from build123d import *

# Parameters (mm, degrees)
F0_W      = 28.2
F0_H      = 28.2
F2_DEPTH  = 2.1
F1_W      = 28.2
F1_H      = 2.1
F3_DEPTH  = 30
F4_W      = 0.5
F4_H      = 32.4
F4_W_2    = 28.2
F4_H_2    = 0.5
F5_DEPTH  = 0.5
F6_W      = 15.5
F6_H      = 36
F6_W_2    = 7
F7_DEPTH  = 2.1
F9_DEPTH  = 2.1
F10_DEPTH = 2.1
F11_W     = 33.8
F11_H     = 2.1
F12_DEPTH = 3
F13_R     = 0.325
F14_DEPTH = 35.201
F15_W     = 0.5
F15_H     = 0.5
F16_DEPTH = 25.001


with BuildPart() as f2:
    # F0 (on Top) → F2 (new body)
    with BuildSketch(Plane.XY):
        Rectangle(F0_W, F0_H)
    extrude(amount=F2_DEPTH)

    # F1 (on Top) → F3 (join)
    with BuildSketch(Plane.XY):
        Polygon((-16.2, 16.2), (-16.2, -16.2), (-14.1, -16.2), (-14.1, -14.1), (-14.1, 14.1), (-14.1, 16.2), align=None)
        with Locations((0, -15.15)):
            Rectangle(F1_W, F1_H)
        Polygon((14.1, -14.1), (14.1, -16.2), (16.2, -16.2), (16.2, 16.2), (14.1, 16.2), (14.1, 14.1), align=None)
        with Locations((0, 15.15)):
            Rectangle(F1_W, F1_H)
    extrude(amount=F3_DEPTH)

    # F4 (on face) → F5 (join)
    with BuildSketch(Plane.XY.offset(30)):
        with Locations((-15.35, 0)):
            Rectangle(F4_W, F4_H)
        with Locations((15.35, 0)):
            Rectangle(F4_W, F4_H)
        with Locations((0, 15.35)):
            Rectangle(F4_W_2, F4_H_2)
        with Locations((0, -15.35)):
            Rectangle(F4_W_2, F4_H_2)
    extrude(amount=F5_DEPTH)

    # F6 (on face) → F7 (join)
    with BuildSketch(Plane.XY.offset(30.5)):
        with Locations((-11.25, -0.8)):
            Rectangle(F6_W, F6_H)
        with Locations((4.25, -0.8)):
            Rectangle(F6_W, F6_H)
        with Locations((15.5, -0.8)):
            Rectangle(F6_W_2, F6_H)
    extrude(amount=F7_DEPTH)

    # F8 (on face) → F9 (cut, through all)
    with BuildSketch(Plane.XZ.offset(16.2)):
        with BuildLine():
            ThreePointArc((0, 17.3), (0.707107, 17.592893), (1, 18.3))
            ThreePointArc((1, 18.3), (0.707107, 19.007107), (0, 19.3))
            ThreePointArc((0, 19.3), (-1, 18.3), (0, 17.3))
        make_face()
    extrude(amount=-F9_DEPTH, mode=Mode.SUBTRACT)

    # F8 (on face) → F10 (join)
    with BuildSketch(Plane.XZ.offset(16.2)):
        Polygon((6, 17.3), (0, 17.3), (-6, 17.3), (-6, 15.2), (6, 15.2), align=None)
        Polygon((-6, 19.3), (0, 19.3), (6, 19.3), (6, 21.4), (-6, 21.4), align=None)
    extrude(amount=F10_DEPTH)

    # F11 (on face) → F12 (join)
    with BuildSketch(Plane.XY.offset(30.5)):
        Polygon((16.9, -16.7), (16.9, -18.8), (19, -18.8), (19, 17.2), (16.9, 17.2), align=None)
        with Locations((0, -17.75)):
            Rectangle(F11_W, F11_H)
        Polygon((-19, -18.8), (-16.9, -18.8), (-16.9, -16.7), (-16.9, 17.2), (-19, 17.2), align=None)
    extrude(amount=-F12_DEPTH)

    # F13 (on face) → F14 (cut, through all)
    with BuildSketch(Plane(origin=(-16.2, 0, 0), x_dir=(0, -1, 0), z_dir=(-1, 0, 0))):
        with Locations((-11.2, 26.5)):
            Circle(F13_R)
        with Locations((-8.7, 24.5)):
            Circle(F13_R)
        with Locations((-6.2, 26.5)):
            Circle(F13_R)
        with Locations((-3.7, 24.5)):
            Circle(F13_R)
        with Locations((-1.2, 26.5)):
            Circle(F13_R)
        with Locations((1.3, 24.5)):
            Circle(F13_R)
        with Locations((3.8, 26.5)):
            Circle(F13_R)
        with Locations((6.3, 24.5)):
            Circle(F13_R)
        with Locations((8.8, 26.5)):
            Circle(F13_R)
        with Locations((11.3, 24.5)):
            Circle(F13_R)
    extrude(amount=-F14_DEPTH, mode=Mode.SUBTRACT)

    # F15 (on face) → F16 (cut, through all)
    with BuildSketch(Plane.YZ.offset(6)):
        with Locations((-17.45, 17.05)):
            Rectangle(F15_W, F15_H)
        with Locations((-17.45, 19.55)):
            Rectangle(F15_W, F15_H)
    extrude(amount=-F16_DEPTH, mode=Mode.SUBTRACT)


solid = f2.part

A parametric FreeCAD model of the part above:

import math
import FreeCAD as App
import Part
import Sketcher
from FreeCAD import Vector


def add_polygon(sketch, points):
    """Adds a closed chain of lines whose ends are joined by coincident constraints."""
    first, n = sketch.GeometryCount, len(points)
    for a, b in zip(points, points[1:] + points[:1]):
        sketch.addGeometry(Part.LineSegment(App.Vector(*a, 0), App.Vector(*b, 0)), False)
    for i in range(n):
        sketch.addConstraint(Sketcher.Constraint("Coincident", first + i, 2, first + (i + 1) % n, 1))

doc = App.newDocument("Part")
body = doc.addObject("PartDesign::Body", "Body")

sketch1 = body.newObject("Sketcher::SketchObject", "Sketch")
sketch1.AttachmentSupport = (doc.getObject("XY_Plane"), [""])
sketch1.MapMode = "FlatFace"
add_polygon(sketch1, [(-14, 14), (-14, -14), (14, -14), (14, 14)])
sketch1.addConstraint([
    Sketcher.Constraint("Vertical", 0),
    Sketcher.Constraint("Horizontal", 1),
    Sketcher.Constraint("Vertical", 2),
    Sketcher.Constraint("Horizontal", 3),
    Sketcher.Constraint("Symmetric", 0, 2, 2, 2, -1, 1),
    Sketcher.Constraint("Equal", 3, 0),
    Sketcher.Constraint("DistanceX", 1, 1, 1, 2, 28.2),
])
pad1 = body.newObject("PartDesign::Pad", "Pad")
pad1.Profile = sketch1
pad1.Length = 2.1

sketch2 = body.newObject("Sketcher::SketchObject", "Sketch001")
sketch2.AttachmentSupport = (doc.getObject("XY_Plane"), [""])
sketch2.MapMode = "FlatFace"
add_polygon(sketch2, [(-16, 16), (-16, -16), (16, -16), (16, 16)])
add_polygon(sketch2, [(14, 14), (14, -14), (-14, -14), (-14, 14)])
sketch2.addConstraint([
    Sketcher.Constraint("Vertical", 0),
    Sketcher.Constraint("Horizontal", 1),
    Sketcher.Constraint("Vertical", 2),
    Sketcher.Constraint("Horizontal", 3),
    Sketcher.Constraint("Vertical", 4),
    Sketcher.Constraint("Horizontal", 5),
    Sketcher.Constraint("Vertical", 6),
    Sketcher.Constraint("Horizontal", 7),
    Sketcher.Constraint("Symmetric", 0, 2, 2, 2, -1, 1),
    Sketcher.Constraint("Symmetric", 4, 2, 6, 2, -1, 1),
    Sketcher.Constraint("Equal", 3, 0),
    Sketcher.Constraint("Equal", 7, 4),
    Sketcher.Constraint("DistanceX", 1, 1, 1, 2, 32.4),
    Sketcher.Constraint("DistanceX", 5, 2, 5, 1, 28.2),
])
pad2 = body.newObject("PartDesign::Pad", "Pad001")
pad2.Profile = sketch2
pad2.Length = 30

sketch3 = body.newObject("Sketcher::SketchObject", "Sketch002")
sketch3.AttachmentSupport = (doc.getObject("XY_Plane"), [""])
sketch3.MapMode = "FlatFace"
sketch3.AttachmentOffset = App.Placement(Vector(0, 0, 30), App.Rotation())
add_polygon(sketch3, [(-15.6, 16.2), (-15.6, -16.2), (-15.1, -16.2), (-15.1, 16.2)])
add_polygon(sketch3, [(15.1, 16.2), (15.1, -16.2), (15.6, -16.2), (15.6, 16.2)])
add_polygon(sketch3, [(-14.1, 15.6), (-14.1, 15.1), (14.1, 15.1), (14.1, 15.6)])
add_polygon(sketch3, [(-14.1, -15.1), (-14.1, -15.6), (14.1, -15.6), (14.1, -15.1)])
sketch3.addConstraint([
    Sketcher.Constraint("Vertical", 0),
    Sketcher.Constraint("Horizontal", 1),
    Sketcher.Constraint("Vertical", 2),
    Sketcher.Constraint("Horizontal", 3),
    Sketcher.Constraint("Vertical", 4),
    Sketcher.Constraint("Horizontal", 5),
    Sketcher.Constraint("Vertical", 6),
    Sketcher.Constraint("Horizontal", 7),
    Sketcher.Constraint("Vertical", 8),
    Sketcher.Constraint("Horizontal", 9),
    Sketcher.Constraint("Vertical", 10),
    Sketcher.Constraint("Horizontal", 11),
    Sketcher.Constraint("Vertical", 12),
    Sketcher.Constraint("Horizontal", 13),
    Sketcher.Constraint("Vertical", 14),
    Sketcher.Constraint("Horizontal", 15),
    Sketcher.Constraint("Symmetric", 2, 2, 4, 2, -1, 1),
    Sketcher.Constraint("Symmetric", 0, 2, 6, 2, -1, 1),
    Sketcher.Constraint("Symmetric", 10, 2, 12, 2, -1, 1),
    Sketcher.Constraint("Symmetric", 8, 2, 14, 2, -1, 1),
    Sketcher.Constraint("Horizontal", 1, 2, 4, 2),
    Sketcher.Constraint("Vertical", 11, 2, 12, 2),
    Sketcher.Constraint("Equal", 7, 8),
    Sketcher.Constraint("DistanceX", 1, 1, 1, 2, 0.5),
    Sketcher.Constraint("DistanceX", 9, 1, 9, 2, 28.2),
    Sketcher.Constraint("DistanceY", 0, 2, 0, 1, 32.4),
    Sketcher.Constraint("DistanceX", 2, 2, 8, 2, 1.0),
    Sketcher.Constraint("DistanceY", -1, 1, 8, 2, 15.1),
])
pad3 = body.newObject("PartDesign::Pad", "Pad002")
pad3.Profile = sketch3
pad3.Length = 0.5

sketch4 = body.newObject("Sketcher::SketchObject", "Sketch003")
sketch4.AttachmentSupport = (doc.getObject("XY_Plane"), [""])
sketch4.MapMode = "FlatFace"
sketch4.AttachmentOffset = App.Placement(Vector(0, 0, 30.5), App.Rotation())
add_polygon(sketch4, [(-19, 17), (-19, -19), (19, -19), (19, 17)])
sketch4.addConstraint([
    Sketcher.Constraint("Vertical", 0),
    Sketcher.Constraint("Horizontal", 1),
    Sketcher.Constraint("Vertical", 2),
    Sketcher.Constraint("Horizontal", 3),
    Sketcher.Constraint("DistanceX", 1, 1, 1, 2, 38.0),
    Sketcher.Constraint("DistanceY", 0, 2, 0, 1, 36.0),
    Sketcher.Constraint("DistanceX", 0, 2, -1, 1, 19.0),
    Sketcher.Constraint("DistanceY", 0, 2, -1, 1, 18.8),
])
pad4 = body.newObject("PartDesign::Pad", "Pad003")
pad4.Profile = sketch4
pad4.Length = 2.1

sketch5 = body.newObject("Sketcher::SketchObject", "Sketch004")
sketch5.AttachmentSupport = (doc.getObject("XZ_Plane"), [""])
sketch5.MapMode = "FlatFace"
sketch5.AttachmentOffset = App.Placement(Vector(0, 0, 16.2), App.Rotation())
sketch5.addGeometry([
    Part.ArcOfCircle(Part.Circle(Vector(0, 18.3, 0), Vector(0, 0, 1), 1), math.radians(-90), math.radians(0)),
    Part.ArcOfCircle(Part.Circle(Vector(0, 18.3, 0), Vector(0, 0, 1), 1), math.radians(0), math.radians(90)),
    Part.ArcOfCircle(Part.Circle(Vector(0, 18.3, 0), Vector(0, 0, 1), 1), math.radians(90), math.radians(270)),
], False)
sketch5.addConstraint([
    Sketcher.Constraint("Tangent", 0, 2, 1, 1),
    Sketcher.Constraint("Tangent", 1, 2, 2, 1),
    Sketcher.Constraint("Tangent", 2, 2, 0, 1),
    Sketcher.Constraint("PointOnObject", 0, 3, -2),
    Sketcher.Constraint("PointOnObject", 1, 2, -2),
    Sketcher.Constraint("PointOnObject", 2, 2, -2),
    Sketcher.Constraint("Horizontal", 2, 3, 0, 2),
    Sketcher.Constraint("Radius", 0, 0.999999),
    Sketcher.Constraint("DistanceY", -1, 1, 0, 3, 18.299999),
])
pocket1 = body.newObject("PartDesign::Pocket", "Pocket")
pocket1.Profile = sketch5
pocket1.Length = 2.1

sketch6 = body.newObject("Sketcher::SketchObject", "Sketch005")
sketch6.AttachmentSupport = (doc.getObject("XZ_Plane"), [""])
sketch6.MapMode = "FlatFace"
sketch6.AttachmentOffset = App.Placement(Vector(0, 0, 16.2), App.Rotation())
add_polygon(sketch6, [(6, 17.3), (-6, 17.3), (-6, 15.2), (6, 15.2)])
add_polygon(sketch6, [(-6, 19.3), (6, 19.3), (6, 21.4), (-6, 21.4)])
sketch6.addConstraint([
    Sketcher.Constraint("Horizontal", 0),
    Sketcher.Constraint("Vertical", 1),
    Sketcher.Constraint("Horizontal", 2),
    Sketcher.Constraint("Vertical", 3),
    Sketcher.Constraint("Horizontal", 4),
    Sketcher.Constraint("Vertical", 5),
    Sketcher.Constraint("Horizontal", 6),
    Sketcher.Constraint("Vertical", 7),
    Sketcher.Constraint("Vertical", 3, 2, 4, 2),
    Sketcher.Constraint("Vertical", 1, 2, 6, 2),
    Sketcher.Constraint("Equal", 3, 5),
    Sketcher.Constraint("DistanceX", 0, 2, 0, 1, 12.0),
    Sketcher.Constraint("DistanceY", 1, 2, 1, 1, 2.1),
    Sketcher.Constraint("DistanceX", 0, 2, -1, 1, 6.0),
    Sketcher.Constraint("DistanceY", 3, 2, 4, 2, 2.0),
    Sketcher.Constraint("DistanceY", -1, 1, 0, 2, 17.3),
])
pad5 = body.newObject("PartDesign::Pad", "Pad004")
pad5.Profile = sketch6
pad5.Length = 2.1

sketch7 = body.newObject("Sketcher::SketchObject", "Sketch006")
sketch7.AttachmentSupport = (doc.getObject("XY_Plane"), [""])
sketch7.MapMode = "FlatFace"
sketch7.AttachmentOffset = App.Placement(Vector(0, 0, 30.5), App.Rotation())
add_polygon(sketch7, [(19, -18.8), (19, 17.2), (16.9, 17.2), (16.9, -16.7), (-16.9, -16.7), (-16.9, 17.2), (-19, 17.2), (-19, -18.8)])
sketch7.addConstraint([
    Sketcher.Constraint("Vertical", 0),
    Sketcher.Constraint("Horizontal", 1),
    Sketcher.Constraint("Vertical", 2),
    Sketcher.Constraint("Horizontal", 3),
    Sketcher.Constraint("Vertical", 4),
    Sketcher.Constraint("Horizontal", 5),
    Sketcher.Constraint("Vertical", 6),
    Sketcher.Constraint("Horizontal", 7),
    Sketcher.Constraint("Symmetric", 1, 2, 4, 2, -2),
    Sketcher.Constraint("Equal", 1, 5),
    Sketcher.Constraint("DistanceX", 7, 1, 7, 2, 38.0),
    Sketcher.Constraint("DistanceY", 0, 1, 0, 2, 36.0),
    Sketcher.Constraint("DistanceX", 1, 2, 1, 1, 2.1),
    Sketcher.Constraint("DistanceY", 2, 2, 2, 1, 33.9),
    Sketcher.Constraint("DistanceY", -1, 1, 0, 2, 17.2),
])
pad6 = body.newObject("PartDesign::Pad", "Pad005")
pad6.Profile = sketch7
pad6.Length = 3
pad6.Reversed = True

sketch8 = body.newObject("Sketcher::SketchObject", "Sketch007")
sketch8.AttachmentSupport = (doc.getObject("YZ_Plane"), [""])
sketch8.MapMode = "FlatFace"
sketch8.AttachmentOffset = App.Placement(Vector(0, 0, -16.2), App.Rotation())
sketch8.addGeometry([
    Part.Circle(Vector(11.2, 26.5, 0), Vector(0, 0, 1), 0.33),
    Part.Circle(Vector(8.7, 24.5, 0), Vector(0, 0, 1), 0.33),
    Part.Circle(Vector(6.2, 26.5, 0), Vector(0, 0, 1), 0.33),
    Part.Circle(Vector(3.7, 24.5, 0), Vector(0, 0, 1), 0.33),
    Part.Circle(Vector(1.2, 26.5, 0), Vector(0, 0, 1), 0.33),
    Part.Circle(Vector(-1.3, 24.5, 0), Vector(0, 0, 1), 0.33),
    Part.Circle(Vector(-3.8, 26.5, 0), Vector(0, 0, 1), 0.33),
    Part.Circle(Vector(-6.3, 24.5, 0), Vector(0, 0, 1), 0.33),
    Part.Circle(Vector(-8.8, 26.5, 0), Vector(0, 0, 1), 0.33),
    Part.Circle(Vector(-11.3, 24.5, 0), Vector(0, 0, 1), 0.33),
], False)
sketch8.addConstraint([
    Sketcher.Constraint("Equal", 0, 1),
    Sketcher.Constraint("Equal", 1, 2),
    Sketcher.Constraint("Equal", 2, 3),
    Sketcher.Constraint("Equal", 3, 4),
    Sketcher.Constraint("Equal", 4, 5),
    Sketcher.Constraint("Equal", 5, 6),
    Sketcher.Constraint("Equal", 6, 7),
    Sketcher.Constraint("Equal", 7, 8),
    Sketcher.Constraint("Equal", 8, 9),
    Sketcher.Constraint("Horizontal", 0, 3, 2, 3),
    Sketcher.Constraint("Horizontal", 1, 3, 3, 3),
    Sketcher.Constraint("Horizontal", 2, 3, 4, 3),
    Sketcher.Constraint("Horizontal", 3, 3, 5, 3),
    Sketcher.Constraint("Horizontal", 4, 3, 6, 3),
    Sketcher.Constraint("Horizontal", 5, 3, 7, 3),
    Sketcher.Constraint("Horizontal", 6, 3, 8, 3),
    Sketcher.Constraint("Horizontal", 7, 3, 9, 3),
    Sketcher.Constraint("Diameter", 0, 0.65),
    Sketcher.Constraint("DistanceY", 1, 3, 0, 3, 2.0),
    Sketcher.Constraint("DistanceX", 2, 3, 0, 3, 5.0),
    Sketcher.Constraint("DistanceX", 3, 3, 1, 3, 5.0),
    Sketcher.Constraint("DistanceX", 4, 3, 2, 3, 5.0),
    Sketcher.Constraint("DistanceX", 5, 3, 3, 3, 5.0),
    Sketcher.Constraint("DistanceX", 6, 3, 4, 3, 5.0),
    Sketcher.Constraint("DistanceX", 7, 3, 5, 3, 5.0),
    Sketcher.Constraint("DistanceX", 8, 3, 6, 3, 5.0),
    Sketcher.Constraint("DistanceX", 9, 3, 7, 3, 5.0),
    Sketcher.Constraint("DistanceX", -1, 1, 0, 3, 11.2),
    Sketcher.Constraint("DistanceY", -1, 1, 0, 3, 26.5),
    Sketcher.Constraint("DistanceX", -1, 1, 1, 3, 8.7),
])
pocket2 = body.newObject("PartDesign::Pocket", "Pocket001")
pocket2.Profile = sketch8
pocket2.Type = "ThroughAll"
pocket2.Reversed = True

sketch9 = body.newObject("Sketcher::SketchObject", "Sketch008")
sketch9.AttachmentSupport = (doc.getObject("YZ_Plane"), [""])
sketch9.MapMode = "FlatFace"
sketch9.AttachmentOffset = App.Placement(Vector(0, 0, 6), App.Rotation())
add_polygon(sketch9, [(-17.7, 17.3), (-17.7, 16.8), (-17.2, 16.8), (-17.2, 17.3)])
add_polygon(sketch9, [(-17.7, 19.8), (-17.7, 19.3), (-17.2, 19.3), (-17.2, 19.8)])
sketch9.addConstraint([
    Sketcher.Constraint("Vertical", 0),
    Sketcher.Constraint("Horizontal", 1),
    Sketcher.Constraint("Vertical", 2),
    Sketcher.Constraint("Horizontal", 3),
    Sketcher.Constraint("Vertical", 4),
    Sketcher.Constraint("Horizontal", 5),
    Sketcher.Constraint("Vertical", 6),
    Sketcher.Constraint("Horizontal", 7),
    Sketcher.Constraint("Vertical", 3, 2, 4, 2),
    Sketcher.Constraint("Vertical", 2, 2, 5, 2),
    Sketcher.Constraint("Equal", 7, 0),
    Sketcher.Constraint("Equal", 2, 4),
    Sketcher.Constraint("DistanceX", 1, 1, 1, 2, 0.5),
    Sketcher.Constraint("DistanceY", 3, 2, 4, 2, 2.0),
    Sketcher.Constraint("DistanceX", 0, 2, -1, 1, 17.7),
    Sketcher.Constraint("DistanceY", -1, 1, 0, 2, 16.8),
])
pocket3 = body.newObject("PartDesign::Pocket", "Pocket002")
pocket3.Profile = sketch9
pocket3.Type = "ThroughAll"

doc.recompute()
